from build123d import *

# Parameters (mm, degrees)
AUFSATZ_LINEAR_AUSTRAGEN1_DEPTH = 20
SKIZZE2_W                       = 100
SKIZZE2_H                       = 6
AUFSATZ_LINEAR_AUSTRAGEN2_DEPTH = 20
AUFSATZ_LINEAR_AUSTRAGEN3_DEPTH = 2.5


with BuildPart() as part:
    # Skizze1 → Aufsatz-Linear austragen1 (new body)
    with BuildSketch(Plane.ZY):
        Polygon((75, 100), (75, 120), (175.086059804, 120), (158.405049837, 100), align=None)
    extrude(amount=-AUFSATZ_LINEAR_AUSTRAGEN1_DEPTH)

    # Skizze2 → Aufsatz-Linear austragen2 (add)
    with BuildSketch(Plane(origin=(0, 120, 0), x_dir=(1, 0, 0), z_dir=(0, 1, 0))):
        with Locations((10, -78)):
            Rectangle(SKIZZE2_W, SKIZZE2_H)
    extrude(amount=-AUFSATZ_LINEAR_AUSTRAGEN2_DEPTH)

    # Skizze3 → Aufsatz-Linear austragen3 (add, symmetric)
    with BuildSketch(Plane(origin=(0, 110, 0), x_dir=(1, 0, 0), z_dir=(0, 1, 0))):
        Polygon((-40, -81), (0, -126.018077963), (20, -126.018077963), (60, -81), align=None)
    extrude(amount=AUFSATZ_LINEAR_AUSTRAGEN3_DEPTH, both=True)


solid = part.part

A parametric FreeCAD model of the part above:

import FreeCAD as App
import Part
import Sketcher
Q = App.Units.Quantity


def add_polygon(sketch, points):
    """Adds a closed chain of lines whose ends are joined by coincident constraints."""
    first, n = sketch.GeometryCount, len(points)
    for a, b in zip(points, points[1:] + points[:1]):
        sketch.addGeometry(Part.LineSegment(App.Vector(*a, 0), App.Vector(*b, 0)), False)
    for i in range(n):
        sketch.addConstraint(Sketcher.Constraint("Coincident", first + i, 2, first + (i + 1) % n, 1))

doc = App.newDocument("Part")
params = doc.addObject("Spreadsheet::Sheet", "Params")
for row, (alias, value) in enumerate([
    ("sketch1_width", "20 mm"),
    ("pad1_length", "20 mm"),
    ("sketch2_width", "100 mm"),
    ("sketch2_height", "6 mm"),
    ("pad2_length", "20 mm"),
    ("sketch3_width", "20 mm"),
    ("sketch3_width2", "100 mm"),
    ("pad3_length", "5 mm"),
], start=1):
    params.set(f"A{row}", alias)
    params.set(f"B{row}", "=" + value)
    params.setAlias(f"B{row}", alias)

body = doc.addObject("PartDesign::Body", "Body")

# Sketch on YZ plane
sketch1 = body.newObject("Sketcher::SketchObject", "Sketch")
sketch1.AttachmentSupport = (doc.getObject("YZ_Plane"), [""])
sketch1.MapMode = "FlatFace"
add_polygon(sketch1, [(120, 75), (100, 75), (100, 158), (120, 175)])  # lines 0-3
sketch1.addConstraint([
    Sketcher.Constraint("Horizontal", 0),
    Sketcher.Constraint("Vertical", 1),
    Sketcher.Constraint("Vertical", 3),
    Sketcher.Constraint("DistanceX", 0, 2, 0, 1, Q("20 mm")),
    Sketcher.Constraint("DistanceX", -1, 1, 0, 2, Q("100 mm")),
    Sketcher.Constraint("DistanceY", -1, 1, 0, 2, Q("75 mm")),
    Sketcher.Constraint("DistanceY", 1, 1, 1, 2, Q("83.40505 mm")),
    Sketcher.Constraint("DistanceY", 3, 2, 3, 1, Q("100.08606 mm")),
])
sketch1.setExpression("Constraints[7]", "Params.sketch1_width")
pad1 = body.newObject("PartDesign::Pad", "Pad")
pad1.Profile = sketch1
pad1.setExpression("Length", "Params.pad1_length")

# Sketch on XZ plane
sketch2 = body.newObject("Sketcher::SketchObject", "Sketch001")
sketch2.AttachmentSupport = (doc.getObject("XZ_Plane"), [""])
sketch2.MapMode = "FlatFace"
sketch2.AttachmentOffset = App.Placement(App.Vector(0, 0, -120), App.Rotation())
add_polygon(sketch2, [(-40, 75), (-40, 81), (60, 81), (60, 75)])  # lines 0-3
sketch2.addConstraint([
    Sketcher.Constraint("Vertical", 0),
    Sketcher.Constraint("Horizontal", 1),
    Sketcher.Constraint("Vertical", 2),
    Sketcher.Constraint("Horizontal", 3),
    Sketcher.Constraint("DistanceX", 1, 1, 1, 2, Q("100 mm")),
    Sketcher.Constraint("DistanceY", 0, 1, 0, 2, Q("6 mm")),
    Sketcher.Constraint("DistanceX", 0, 2, -1, 1, Q("40 mm")),
    Sketcher.Constraint("DistanceY", -1, 1, 0, 2, Q("81 mm")),
])
sketch2.setExpression("Constraints[8]", "Params.sketch2_width")
sketch2.setExpression("Constraints[9]", "Params.sketch2_height")
pad2 = body.newObject("PartDesign::Pad", "Pad001")
pad2.Profile = sketch2
pad2.setExpression("Length", "Params.pad2_length")

# Sketch on XZ plane
sketch3 = body.newObject("Sketcher::SketchObject", "Sketch002")
sketch3.AttachmentSupport = (doc.getObject("XZ_Plane"), [""])
sketch3.MapMode = "FlatFace"
sketch3.AttachmentOffset = App.Placement(App.Vector(0, 0, -110), App.Rotation())
add_polygon(sketch3, [(-40, 81), (0, 126), (20, 126), (60, 81)])  # lines 0-3
sketch3.addConstraint([
    Sketcher.Constraint("Horizontal", 1),
    Sketcher.Constraint("Horizontal", 3),
    Sketcher.Constraint("PointOnObject", 0, 2, -2),
    Sketcher.Constraint("Equal", 0, 2),
    Sketcher.Constraint("DistanceX", 1, 1, 1, 2, Q("20 mm")),
    Sketcher.Constraint("DistanceX", 3, 2, 3, 1, Q("100 mm")),
    Sketcher.Constraint("DistanceY", -1, 1, 2, 2, Q("81 mm")),
    Sketcher.Constraint("Distance", 0, Q("60.221486 mm")),
])
sketch3.setExpression("Constraints[8]", "Params.sketch3_width")
sketch3.setExpression("Constraints[9]", "Params.sketch3_width2")
pad3 = body.newObject("PartDesign::Pad", "Pad002")
pad3.Profile = sketch3
pad3.setExpression("Length", "Params.pad3_length")
pad3.Midplane = True

doc.recompute()
